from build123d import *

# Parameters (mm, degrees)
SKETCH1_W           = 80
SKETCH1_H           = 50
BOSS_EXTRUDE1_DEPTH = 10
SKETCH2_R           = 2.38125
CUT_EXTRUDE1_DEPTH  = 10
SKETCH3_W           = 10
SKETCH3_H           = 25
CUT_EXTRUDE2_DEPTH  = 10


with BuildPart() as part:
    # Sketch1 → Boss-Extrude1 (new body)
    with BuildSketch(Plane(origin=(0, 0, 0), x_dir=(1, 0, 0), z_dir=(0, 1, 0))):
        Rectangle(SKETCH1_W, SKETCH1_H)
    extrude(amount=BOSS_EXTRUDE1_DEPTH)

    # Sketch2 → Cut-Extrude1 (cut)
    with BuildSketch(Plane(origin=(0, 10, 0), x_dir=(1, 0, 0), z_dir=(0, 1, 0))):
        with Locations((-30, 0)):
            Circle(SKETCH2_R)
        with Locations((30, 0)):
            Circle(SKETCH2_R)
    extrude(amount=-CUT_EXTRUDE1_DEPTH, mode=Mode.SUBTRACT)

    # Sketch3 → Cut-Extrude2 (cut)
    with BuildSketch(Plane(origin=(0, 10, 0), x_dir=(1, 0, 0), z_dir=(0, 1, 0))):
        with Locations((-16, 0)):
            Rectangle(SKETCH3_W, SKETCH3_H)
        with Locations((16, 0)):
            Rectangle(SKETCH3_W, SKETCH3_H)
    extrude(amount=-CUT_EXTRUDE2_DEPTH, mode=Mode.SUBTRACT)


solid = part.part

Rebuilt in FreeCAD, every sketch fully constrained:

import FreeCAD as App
import Part
import Sketcher
Q = App.Units.Quantity


def add_polygon(sketch, points):
    """Adds a closed chain of lines whose ends are joined by coincident constraints."""
    first, n = sketch.GeometryCount, len(points)
    for a, b in zip(points, points[1:] + points[:1]):
        sketch.addGeometry(Part.LineSegment(App.Vector(*a, 0), App.Vector(*b, 0)), False)
    for i in range(n):
        sketch.addConstraint(Sketcher.Constraint("Coincident", first + i, 2, first + (i + 1) % n, 1))

doc = App.newDocument("Part")
body = doc.addObject("PartDesign::Body", "Body")

sketch1 = doc.addObject("Sketcher::SketchObject", "Sketch")
body.addObject(sketch1)
sketch1.AttachmentSupport = (doc.XZ_Plane, [""])
sketch1.MapMode = "FlatFace"
add_polygon(sketch1, [(-40, -25), (-40, 25), (40, 25), (40, -25)])
sketch1.addConstraint(Sketcher.Constraint("Vertical", 0))
sketch1.addConstraint(Sketcher.Constraint("Horizontal", 1))
sketch1.addConstraint(Sketcher.Constraint("Vertical", 2))
sketch1.addConstraint(Sketcher.Constraint("Horizontal", 3))
sketch1.addConstraint(Sketcher.Constraint("Symmetric", 0, 2, 2, 2, -1, 1))
sketch1.addConstraint(Sketcher.Constraint("DistanceX", 1, 1, 1, 2, Q("80 mm")))
sketch1.addConstraint(Sketcher.Constraint("DistanceY", 0, 1, 0, 2, Q("50 mm")))
pad1 = doc.addObject("PartDesign::Pad", "Pad")
body.addObject(pad1)
pad1.Profile = sketch1
pad1.Length = 10
pad1.Reversed = True

sketch2 = doc.addObject("Sketcher::SketchObject", "Sketch001")
body.addObject(sketch2)
sketch2.AttachmentSupport = (doc.XZ_Plane, [""])
sketch2.MapMode = "FlatFace"
sketch2.AttachmentOffset = App.Placement(App.Vector(0, 0, -10), App.Rotation())
sketch2.addGeometry(Part.Circle(App.Vector(-30, 0, 0), App.Vector(0, 0, 1), 2.4), False)
sketch2.addGeometry(Part.Circle(App.Vector(30, 0, 0), App.Vector(0, 0, 1), 2.4), False)
sketch2.addConstraint(Sketcher.Constraint("Equal", 0, 1))
sketch2.addConstraint(Sketcher.Constraint("Symmetric", 0, 3, 1, 3, -1, 1))
sketch2.addConstraint(Sketcher.Constraint("PointOnObject", 0, 3, -1))
sketch2.addConstraint(Sketcher.Constraint("DistanceX", 0, 3, -1, 1, Q("30 mm")))
sketch2.addConstraint(Sketcher.Constraint("Diameter", 0, Q("4.7625 mm")))
pocket1 = doc.addObject("PartDesign::Pocket", "Pocket")
body.addObject(pocket1)
pocket1.Profile = sketch2
pocket1.Length = 10
pocket1.Reversed = True

sketch3 = doc.addObject("Sketcher::SketchObject", "Sketch002")
body.addObject(sketch3)
sketch3.AttachmentSupport = (doc.XZ_Plane, [""])
sketch3.MapMode = "FlatFace"
sketch3.AttachmentOffset = App.Placement(App.Vector(0, 0, -10), App.Rotation())
add_polygon(sketch3, [(-21, -12), (-21, 12), (-11, 12), (-11, -12)])
add_polygon(sketch3, [(11, -12), (11, 12), (21, 12), (21, -12)])
sketch3.addConstraint(Sketcher.Constraint("Vertical", 0))
sketch3.addConstraint(Sketcher.Constraint("Horizontal", 1))
sketch3.addConstraint(Sketcher.Constraint("Vertical", 2))
sketch3.addConstraint(Sketcher.Constraint("Horizontal", 3))
sketch3.addConstraint(Sketcher.Constraint("Vertical", 4))
sketch3.addConstraint(Sketcher.Constraint("Horizontal", 5))
sketch3.addConstraint(Sketcher.Constraint("Vertical", 6))
sketch3.addConstraint(Sketcher.Constraint("Horizontal", 7))
sketch3.addConstraint(Sketcher.Constraint("Symmetric", 2, 2, 4, 2, -1, 1))
sketch3.addConstraint(Sketcher.Constraint("Symmetric", 0, 2, 6, 2, -1, 1))
sketch3.addConstraint(Sketcher.Constraint("Horizontal", 1, 2, 4, 2))
sketch3.addConstraint(Sketcher.Constraint("DistanceX", 1, 1, 1, 2, Q("10 mm")))
sketch3.addConstraint(Sketcher.Constraint("DistanceY", 0, 1, 0, 2, Q("25 mm")))
sketch3.addConstraint(Sketcher.Constraint("DistanceX", 0, 2, -1, 1, Q("21 mm")))
pocket2 = doc.addObject("PartDesign::Pocket", "Pocket001")
body.addObject(pocket2)
pocket2.Profile = sketch3
pocket2.Length = 10
pocket2.Reversed = True

doc.recompute()
